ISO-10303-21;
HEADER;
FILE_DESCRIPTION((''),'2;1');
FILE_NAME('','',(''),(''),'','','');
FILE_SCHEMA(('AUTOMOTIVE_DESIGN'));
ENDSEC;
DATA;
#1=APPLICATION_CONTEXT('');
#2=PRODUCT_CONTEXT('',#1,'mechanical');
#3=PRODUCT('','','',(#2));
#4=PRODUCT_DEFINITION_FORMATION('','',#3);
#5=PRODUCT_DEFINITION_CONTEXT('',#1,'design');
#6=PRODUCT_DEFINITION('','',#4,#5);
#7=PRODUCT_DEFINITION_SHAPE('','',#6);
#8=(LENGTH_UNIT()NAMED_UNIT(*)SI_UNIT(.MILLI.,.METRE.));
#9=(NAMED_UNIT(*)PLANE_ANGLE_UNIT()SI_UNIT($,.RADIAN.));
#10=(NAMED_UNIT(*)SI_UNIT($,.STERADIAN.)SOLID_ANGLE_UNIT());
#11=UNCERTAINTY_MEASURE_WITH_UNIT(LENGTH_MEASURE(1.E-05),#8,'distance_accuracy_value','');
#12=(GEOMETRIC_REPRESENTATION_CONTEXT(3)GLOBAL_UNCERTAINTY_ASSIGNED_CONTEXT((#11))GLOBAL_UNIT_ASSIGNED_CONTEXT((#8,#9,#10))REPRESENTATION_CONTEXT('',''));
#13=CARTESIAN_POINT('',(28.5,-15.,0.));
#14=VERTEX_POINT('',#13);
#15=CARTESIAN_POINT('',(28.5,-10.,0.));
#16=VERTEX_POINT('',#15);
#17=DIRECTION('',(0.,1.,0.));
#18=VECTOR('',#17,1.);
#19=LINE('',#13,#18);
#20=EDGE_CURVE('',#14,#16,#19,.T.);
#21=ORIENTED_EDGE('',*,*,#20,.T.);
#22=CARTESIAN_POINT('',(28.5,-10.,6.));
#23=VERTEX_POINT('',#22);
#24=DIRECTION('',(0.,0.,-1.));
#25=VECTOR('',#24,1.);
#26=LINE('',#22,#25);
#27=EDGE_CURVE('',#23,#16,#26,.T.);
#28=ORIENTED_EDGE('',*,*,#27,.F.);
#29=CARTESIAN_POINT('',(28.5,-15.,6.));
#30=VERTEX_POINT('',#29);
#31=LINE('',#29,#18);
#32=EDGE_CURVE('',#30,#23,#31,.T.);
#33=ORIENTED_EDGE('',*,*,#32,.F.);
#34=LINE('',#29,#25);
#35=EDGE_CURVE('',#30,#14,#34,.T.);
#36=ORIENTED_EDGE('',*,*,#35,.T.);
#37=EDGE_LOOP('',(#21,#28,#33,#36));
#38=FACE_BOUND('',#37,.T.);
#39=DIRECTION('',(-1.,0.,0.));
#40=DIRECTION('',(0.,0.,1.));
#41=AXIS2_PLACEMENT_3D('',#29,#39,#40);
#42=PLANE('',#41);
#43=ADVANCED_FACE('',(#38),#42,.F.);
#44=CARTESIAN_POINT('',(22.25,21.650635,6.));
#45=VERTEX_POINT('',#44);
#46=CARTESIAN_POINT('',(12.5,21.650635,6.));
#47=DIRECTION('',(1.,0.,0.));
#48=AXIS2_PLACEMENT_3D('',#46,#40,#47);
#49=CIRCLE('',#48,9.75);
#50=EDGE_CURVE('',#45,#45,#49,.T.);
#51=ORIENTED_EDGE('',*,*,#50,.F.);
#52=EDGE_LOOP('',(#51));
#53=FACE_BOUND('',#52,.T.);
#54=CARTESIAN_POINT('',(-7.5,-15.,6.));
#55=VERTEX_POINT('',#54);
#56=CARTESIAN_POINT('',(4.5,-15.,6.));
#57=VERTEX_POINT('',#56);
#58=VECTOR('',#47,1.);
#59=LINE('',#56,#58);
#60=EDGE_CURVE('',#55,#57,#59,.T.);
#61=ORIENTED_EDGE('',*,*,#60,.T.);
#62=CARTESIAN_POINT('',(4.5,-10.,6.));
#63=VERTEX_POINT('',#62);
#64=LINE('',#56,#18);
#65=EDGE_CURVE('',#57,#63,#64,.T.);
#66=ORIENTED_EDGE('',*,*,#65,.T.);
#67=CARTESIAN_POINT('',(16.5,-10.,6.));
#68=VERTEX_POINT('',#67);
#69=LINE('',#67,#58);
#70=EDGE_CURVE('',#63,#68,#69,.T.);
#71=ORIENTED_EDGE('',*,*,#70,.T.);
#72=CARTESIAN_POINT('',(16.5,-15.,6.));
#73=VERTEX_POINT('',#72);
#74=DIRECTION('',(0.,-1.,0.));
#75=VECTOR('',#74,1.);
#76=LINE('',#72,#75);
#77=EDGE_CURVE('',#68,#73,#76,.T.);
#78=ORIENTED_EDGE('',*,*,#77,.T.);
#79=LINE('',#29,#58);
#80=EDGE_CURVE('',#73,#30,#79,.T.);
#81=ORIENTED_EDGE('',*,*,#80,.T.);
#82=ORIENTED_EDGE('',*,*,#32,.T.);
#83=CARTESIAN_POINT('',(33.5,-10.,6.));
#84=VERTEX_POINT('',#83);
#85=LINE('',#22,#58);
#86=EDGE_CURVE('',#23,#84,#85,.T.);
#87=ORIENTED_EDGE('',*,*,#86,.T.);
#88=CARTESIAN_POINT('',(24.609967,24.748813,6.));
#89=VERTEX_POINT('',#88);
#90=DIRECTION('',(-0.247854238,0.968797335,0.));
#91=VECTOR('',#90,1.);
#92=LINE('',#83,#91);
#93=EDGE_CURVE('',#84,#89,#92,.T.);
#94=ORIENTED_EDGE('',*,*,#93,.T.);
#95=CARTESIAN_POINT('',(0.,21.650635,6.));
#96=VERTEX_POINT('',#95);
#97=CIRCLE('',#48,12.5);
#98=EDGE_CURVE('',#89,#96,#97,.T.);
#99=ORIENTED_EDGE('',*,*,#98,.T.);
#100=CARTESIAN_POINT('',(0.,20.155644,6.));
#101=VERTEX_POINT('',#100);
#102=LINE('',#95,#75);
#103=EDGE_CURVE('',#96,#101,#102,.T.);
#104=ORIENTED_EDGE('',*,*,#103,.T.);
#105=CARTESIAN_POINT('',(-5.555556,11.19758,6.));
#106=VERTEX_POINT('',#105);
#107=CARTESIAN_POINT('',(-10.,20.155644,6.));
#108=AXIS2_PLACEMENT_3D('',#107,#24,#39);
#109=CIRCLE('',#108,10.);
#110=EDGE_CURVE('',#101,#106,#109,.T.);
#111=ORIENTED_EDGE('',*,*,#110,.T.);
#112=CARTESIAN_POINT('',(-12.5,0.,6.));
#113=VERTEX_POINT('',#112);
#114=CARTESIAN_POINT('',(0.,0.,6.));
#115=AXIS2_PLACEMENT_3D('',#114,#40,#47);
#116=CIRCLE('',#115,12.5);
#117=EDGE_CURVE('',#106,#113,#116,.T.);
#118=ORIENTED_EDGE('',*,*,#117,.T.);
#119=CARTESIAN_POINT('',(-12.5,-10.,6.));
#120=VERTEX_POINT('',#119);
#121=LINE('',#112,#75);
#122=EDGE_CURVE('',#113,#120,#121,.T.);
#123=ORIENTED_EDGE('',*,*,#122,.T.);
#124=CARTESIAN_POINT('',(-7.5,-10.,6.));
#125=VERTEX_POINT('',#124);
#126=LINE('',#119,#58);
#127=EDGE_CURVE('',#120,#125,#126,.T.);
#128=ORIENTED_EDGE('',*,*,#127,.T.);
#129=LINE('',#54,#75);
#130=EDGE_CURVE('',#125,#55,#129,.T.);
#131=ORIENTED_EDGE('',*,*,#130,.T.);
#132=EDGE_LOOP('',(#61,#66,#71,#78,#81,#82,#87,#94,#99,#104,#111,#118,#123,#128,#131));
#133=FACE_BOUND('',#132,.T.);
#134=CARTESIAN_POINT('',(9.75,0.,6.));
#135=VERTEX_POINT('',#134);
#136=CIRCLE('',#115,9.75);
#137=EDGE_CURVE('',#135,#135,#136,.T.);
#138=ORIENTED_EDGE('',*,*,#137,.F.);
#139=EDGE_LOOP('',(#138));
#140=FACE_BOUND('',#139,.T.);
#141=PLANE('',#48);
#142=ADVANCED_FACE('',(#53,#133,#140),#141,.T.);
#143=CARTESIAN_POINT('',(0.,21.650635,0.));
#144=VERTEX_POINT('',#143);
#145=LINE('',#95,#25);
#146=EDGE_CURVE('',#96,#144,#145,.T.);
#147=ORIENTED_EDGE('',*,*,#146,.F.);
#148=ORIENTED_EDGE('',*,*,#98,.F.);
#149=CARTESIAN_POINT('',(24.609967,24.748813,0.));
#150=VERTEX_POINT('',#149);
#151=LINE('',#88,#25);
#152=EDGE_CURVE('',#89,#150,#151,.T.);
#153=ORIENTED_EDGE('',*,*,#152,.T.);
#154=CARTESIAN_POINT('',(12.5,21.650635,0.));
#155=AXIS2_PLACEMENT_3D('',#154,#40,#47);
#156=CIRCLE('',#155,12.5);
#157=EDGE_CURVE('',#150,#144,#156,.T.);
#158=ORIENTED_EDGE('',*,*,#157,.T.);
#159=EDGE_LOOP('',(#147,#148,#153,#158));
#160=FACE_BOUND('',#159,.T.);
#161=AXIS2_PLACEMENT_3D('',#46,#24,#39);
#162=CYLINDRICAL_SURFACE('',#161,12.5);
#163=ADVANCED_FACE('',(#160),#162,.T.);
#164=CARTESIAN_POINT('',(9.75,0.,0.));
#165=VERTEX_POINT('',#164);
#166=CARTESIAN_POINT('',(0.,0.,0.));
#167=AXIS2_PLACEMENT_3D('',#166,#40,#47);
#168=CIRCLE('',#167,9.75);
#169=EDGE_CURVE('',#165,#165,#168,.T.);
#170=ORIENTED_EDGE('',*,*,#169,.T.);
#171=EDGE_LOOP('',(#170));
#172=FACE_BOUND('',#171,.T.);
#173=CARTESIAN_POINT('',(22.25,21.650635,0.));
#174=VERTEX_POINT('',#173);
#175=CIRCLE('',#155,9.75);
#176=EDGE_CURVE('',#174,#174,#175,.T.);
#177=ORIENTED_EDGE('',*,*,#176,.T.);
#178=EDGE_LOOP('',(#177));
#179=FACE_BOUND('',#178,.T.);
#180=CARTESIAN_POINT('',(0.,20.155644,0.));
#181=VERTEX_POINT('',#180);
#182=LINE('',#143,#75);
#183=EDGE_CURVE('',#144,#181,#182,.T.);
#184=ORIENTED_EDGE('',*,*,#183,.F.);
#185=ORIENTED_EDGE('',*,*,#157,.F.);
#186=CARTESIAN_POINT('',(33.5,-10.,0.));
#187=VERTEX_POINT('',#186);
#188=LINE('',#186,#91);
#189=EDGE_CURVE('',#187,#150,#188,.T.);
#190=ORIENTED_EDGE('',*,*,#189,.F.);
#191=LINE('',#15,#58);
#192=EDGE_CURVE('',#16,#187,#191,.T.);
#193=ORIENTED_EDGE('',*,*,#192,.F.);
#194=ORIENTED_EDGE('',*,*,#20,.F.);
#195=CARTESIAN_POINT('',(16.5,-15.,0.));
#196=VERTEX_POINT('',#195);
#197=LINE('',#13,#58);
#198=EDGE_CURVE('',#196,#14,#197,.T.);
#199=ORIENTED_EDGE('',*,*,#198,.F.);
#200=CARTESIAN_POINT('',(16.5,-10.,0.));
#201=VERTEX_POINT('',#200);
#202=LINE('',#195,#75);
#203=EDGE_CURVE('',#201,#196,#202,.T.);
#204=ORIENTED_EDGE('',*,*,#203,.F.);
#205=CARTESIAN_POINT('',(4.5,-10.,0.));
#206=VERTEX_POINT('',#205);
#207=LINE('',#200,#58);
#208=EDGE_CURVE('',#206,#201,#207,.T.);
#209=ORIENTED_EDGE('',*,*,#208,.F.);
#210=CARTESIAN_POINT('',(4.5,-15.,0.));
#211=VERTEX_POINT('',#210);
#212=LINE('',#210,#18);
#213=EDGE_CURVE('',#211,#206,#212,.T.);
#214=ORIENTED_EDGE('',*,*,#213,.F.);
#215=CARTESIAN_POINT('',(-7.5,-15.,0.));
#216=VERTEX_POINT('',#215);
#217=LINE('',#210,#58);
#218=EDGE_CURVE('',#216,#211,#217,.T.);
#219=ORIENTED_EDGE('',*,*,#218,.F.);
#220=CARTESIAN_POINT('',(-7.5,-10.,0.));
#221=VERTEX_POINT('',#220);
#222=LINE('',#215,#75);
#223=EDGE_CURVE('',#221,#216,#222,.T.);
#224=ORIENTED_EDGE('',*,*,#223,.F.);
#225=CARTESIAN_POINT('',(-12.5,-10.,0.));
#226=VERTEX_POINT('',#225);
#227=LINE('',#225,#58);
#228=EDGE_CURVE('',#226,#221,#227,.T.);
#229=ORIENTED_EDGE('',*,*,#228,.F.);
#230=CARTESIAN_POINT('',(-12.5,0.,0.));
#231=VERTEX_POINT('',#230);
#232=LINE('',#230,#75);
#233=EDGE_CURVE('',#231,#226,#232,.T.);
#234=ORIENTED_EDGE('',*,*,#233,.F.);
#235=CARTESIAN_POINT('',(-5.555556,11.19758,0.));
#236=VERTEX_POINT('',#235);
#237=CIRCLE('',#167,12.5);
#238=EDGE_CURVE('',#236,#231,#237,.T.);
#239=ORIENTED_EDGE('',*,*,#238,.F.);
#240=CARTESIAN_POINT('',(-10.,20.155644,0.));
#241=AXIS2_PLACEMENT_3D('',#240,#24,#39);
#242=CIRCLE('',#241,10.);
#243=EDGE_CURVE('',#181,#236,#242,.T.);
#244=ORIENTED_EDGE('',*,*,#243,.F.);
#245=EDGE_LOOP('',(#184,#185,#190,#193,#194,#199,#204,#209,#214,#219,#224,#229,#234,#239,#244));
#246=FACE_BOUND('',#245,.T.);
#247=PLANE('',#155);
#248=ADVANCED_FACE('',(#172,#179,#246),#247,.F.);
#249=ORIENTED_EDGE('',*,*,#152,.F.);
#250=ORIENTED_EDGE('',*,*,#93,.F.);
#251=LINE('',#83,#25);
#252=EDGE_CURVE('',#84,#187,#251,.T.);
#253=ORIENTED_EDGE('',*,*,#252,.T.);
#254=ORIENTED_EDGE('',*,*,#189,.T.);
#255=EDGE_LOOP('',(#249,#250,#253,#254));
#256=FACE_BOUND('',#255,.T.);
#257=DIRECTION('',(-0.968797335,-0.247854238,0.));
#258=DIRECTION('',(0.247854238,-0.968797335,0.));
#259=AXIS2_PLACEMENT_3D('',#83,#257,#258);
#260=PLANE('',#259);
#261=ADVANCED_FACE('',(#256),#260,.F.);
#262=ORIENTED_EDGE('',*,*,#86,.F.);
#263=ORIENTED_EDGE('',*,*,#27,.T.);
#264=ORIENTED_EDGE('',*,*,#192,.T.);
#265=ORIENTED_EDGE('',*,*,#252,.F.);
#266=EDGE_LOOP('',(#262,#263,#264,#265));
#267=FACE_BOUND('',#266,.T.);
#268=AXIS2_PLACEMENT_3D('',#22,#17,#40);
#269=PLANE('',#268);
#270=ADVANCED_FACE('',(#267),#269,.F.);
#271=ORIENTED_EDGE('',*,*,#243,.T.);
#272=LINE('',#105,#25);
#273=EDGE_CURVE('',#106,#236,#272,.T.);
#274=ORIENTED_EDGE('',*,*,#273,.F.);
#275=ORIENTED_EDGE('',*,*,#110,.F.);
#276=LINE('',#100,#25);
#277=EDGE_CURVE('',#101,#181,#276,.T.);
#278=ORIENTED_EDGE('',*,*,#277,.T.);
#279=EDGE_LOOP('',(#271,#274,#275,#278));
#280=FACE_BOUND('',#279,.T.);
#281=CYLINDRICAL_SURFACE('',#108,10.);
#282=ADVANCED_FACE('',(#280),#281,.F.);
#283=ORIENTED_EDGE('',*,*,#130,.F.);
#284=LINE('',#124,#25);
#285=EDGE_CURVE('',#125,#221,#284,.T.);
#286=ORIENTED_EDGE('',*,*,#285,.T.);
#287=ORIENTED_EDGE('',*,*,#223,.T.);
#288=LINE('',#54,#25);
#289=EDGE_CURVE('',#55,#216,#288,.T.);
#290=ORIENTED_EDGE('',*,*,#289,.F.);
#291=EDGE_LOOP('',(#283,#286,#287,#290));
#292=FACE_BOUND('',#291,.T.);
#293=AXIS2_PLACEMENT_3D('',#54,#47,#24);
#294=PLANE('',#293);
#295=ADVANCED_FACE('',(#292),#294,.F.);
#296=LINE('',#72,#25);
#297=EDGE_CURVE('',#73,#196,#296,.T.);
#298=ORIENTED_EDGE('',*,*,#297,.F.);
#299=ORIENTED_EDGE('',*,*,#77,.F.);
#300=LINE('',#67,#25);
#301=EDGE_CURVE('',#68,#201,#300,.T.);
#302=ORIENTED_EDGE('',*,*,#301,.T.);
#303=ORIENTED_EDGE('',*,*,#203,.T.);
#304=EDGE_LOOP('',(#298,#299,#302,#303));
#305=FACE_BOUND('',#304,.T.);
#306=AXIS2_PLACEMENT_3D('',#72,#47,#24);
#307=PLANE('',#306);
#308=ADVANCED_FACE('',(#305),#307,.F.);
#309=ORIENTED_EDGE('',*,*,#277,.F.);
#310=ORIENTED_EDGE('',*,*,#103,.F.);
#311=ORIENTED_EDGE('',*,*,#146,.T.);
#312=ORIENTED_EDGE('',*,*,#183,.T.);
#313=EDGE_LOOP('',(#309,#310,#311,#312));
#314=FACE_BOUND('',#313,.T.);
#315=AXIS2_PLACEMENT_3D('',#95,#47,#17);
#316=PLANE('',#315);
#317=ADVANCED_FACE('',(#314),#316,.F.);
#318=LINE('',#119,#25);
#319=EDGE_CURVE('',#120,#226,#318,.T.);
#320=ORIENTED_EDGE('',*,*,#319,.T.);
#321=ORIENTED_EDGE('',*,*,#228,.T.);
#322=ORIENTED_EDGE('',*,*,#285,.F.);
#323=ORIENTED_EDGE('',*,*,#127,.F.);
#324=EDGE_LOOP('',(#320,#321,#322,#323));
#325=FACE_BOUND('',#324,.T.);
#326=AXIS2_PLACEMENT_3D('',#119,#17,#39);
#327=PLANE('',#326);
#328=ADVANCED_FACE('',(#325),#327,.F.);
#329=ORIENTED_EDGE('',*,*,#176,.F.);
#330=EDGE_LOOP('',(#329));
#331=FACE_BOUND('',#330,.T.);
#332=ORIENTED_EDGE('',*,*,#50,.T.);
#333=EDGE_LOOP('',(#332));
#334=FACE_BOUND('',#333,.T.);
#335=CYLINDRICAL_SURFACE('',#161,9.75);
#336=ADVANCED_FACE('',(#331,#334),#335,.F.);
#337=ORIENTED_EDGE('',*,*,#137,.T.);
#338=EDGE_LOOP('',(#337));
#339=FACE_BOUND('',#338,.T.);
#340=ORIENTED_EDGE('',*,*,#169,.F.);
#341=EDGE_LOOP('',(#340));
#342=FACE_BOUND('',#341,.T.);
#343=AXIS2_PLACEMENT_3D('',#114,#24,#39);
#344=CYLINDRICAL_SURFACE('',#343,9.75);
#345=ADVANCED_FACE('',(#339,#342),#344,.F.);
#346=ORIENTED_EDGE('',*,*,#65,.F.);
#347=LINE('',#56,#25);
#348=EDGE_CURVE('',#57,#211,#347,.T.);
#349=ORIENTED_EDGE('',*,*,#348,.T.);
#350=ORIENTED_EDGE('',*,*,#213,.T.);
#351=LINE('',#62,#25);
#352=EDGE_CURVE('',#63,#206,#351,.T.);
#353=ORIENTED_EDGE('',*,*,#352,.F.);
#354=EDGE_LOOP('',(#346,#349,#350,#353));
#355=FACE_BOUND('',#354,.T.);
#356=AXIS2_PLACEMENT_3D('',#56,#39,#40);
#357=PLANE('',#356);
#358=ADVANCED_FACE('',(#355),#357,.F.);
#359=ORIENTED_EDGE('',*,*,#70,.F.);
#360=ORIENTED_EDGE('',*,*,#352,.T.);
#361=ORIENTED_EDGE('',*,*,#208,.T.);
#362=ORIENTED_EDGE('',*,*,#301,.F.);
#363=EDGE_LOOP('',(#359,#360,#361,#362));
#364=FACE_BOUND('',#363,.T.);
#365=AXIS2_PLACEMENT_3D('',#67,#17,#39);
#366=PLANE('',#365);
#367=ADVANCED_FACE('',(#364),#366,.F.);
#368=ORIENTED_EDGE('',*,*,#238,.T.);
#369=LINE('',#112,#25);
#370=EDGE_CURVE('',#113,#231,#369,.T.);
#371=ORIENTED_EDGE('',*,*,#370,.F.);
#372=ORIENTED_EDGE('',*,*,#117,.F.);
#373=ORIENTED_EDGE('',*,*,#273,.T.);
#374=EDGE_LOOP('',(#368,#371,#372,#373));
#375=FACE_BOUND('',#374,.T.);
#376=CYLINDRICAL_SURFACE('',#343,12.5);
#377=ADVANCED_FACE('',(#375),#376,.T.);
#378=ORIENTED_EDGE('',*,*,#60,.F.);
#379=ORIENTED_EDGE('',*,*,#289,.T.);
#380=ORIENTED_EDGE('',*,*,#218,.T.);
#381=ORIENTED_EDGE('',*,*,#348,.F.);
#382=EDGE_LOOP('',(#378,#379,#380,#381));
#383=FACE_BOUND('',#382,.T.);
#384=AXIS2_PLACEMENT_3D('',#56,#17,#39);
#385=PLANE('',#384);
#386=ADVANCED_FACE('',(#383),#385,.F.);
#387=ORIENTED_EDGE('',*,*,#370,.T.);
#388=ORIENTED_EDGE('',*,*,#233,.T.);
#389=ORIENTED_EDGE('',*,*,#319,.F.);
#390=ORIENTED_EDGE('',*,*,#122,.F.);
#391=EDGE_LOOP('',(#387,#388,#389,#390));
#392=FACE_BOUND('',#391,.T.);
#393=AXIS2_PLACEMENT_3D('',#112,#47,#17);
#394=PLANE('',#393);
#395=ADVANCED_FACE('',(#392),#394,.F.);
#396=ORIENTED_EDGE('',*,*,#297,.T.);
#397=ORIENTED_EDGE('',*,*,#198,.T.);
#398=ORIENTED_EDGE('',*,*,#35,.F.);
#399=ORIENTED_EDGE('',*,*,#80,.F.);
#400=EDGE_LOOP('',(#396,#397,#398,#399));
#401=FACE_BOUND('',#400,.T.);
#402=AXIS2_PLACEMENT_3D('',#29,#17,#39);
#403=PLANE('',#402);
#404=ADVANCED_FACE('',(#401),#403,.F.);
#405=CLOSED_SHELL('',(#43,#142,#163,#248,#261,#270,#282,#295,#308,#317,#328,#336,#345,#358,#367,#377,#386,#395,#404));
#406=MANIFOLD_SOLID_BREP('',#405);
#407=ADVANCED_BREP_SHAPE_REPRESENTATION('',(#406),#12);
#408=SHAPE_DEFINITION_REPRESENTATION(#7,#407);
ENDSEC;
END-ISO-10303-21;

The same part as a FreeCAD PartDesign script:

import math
import FreeCAD as App
import Part
import Sketcher
from FreeCAD import Vector
Q = App.Units.Quantity

doc = App.newDocument("Part")
body = doc.addObject("PartDesign::Body", "Body")

sketch1 = body.newObject("Sketcher::SketchObject", "Sketch")
sketch1.AttachmentSupport = (doc.getObject("XY_Plane"), [""])
sketch1.MapMode = "FlatFace"
sketch1.addGeometry([
    Part.LineSegment(Vector(-12.5, 0, 0), Vector(-12.5, -10, 0)),
    Part.LineSegment(Vector(-12.5, -10, 0), Vector(-7.5, -10, 0)),
    Part.LineSegment(Vector(-7.5, -10, 0), Vector(-7.5, -15, 0)),
    Part.LineSegment(Vector(-7.5, -15, 0), Vector(4.5, -15, 0)),
    Part.LineSegment(Vector(4.5, -15, 0), Vector(4.5, -10, 0)),
    Part.LineSegment(Vector(4.5, -10, 0), Vector(16.5, -10, 0)),
    Part.LineSegment(Vector(16.5, -10, 0), Vector(16.5, -15, 0)),
    Part.LineSegment(Vector(16.5, -15, 0), Vector(28.5, -15, 0)),
    Part.LineSegment(Vector(28.5, -15, 0), Vector(28.5, -10, 0)),
    Part.LineSegment(Vector(28.5, -10, 0), Vector(33.5, -10, 0)),
    Part.LineSegment(Vector(33.5, -10, 0), Vector(24.6, 24.7, 0)),
    Part.ArcOfCircle(Part.Circle(Vector(12.5, 21.7, 0), Vector(0, 0, 1), 12.5), math.radians(14), math.radians(180)),
    Part.LineSegment(Vector(0, 21.7, 0), Vector(0, 20.2, 0)),
    Part.ArcOfCircle(Part.Circle(Vector(-10, 20.2, 0), Vector(0, 0, 1), 10), math.radians(-64), math.radians(0)),
    Part.ArcOfCircle(Part.Circle(Vector(0, 0, 0), Vector(0, 0, 1), 12.5), math.radians(116), math.radians(180)),
    Part.Circle(Vector(0, 0, 0), Vector(0, 0, 1), 9.8),
    Part.Circle(Vector(12.5, 21.7, 0), Vector(0, 0, 1), 9.8),
], False)
sketch1.addConstraint([
    Sketcher.Constraint("Coincident", 0, 2, 1, 1),
    Sketcher.Constraint("Coincident", 1, 2, 2, 1),
    Sketcher.Constraint("Coincident", 2, 2, 3, 1),
    Sketcher.Constraint("Coincident", 3, 2, 4, 1),
    Sketcher.Constraint("Coincident", 4, 2, 5, 1),
    Sketcher.Constraint("Coincident", 5, 2, 6, 1),
    Sketcher.Constraint("Coincident", 6, 2, 7, 1),
    Sketcher.Constraint("Coincident", 7, 2, 8, 1),
    Sketcher.Constraint("Coincident", 8, 2, 9, 1),
    Sketcher.Constraint("Coincident", 9, 2, 10, 1),
    Sketcher.Constraint("Tangent", 10, 2, 11, 1),
    Sketcher.Constraint("Tangent", 11, 2, 12, 1),
    Sketcher.Constraint("Tangent", 12, 2, 13, 2),
    Sketcher.Constraint("Tangent", 13, 1, 14, 1),
    Sketcher.Constraint("Tangent", 14, 2, 0, 1),
    Sketcher.Constraint("Vertical", 0),
    Sketcher.Constraint("Horizontal", 1),
    Sketcher.Constraint("Vertical", 2),
    Sketcher.Constraint("Horizontal", 3),
    Sketcher.Constraint("Vertical", 4),
    Sketcher.Constraint("Horizontal", 5),
    Sketcher.Constraint("Vertical", 6),
    Sketcher.Constraint("Horizontal", 7),
    Sketcher.Constraint("Vertical", 8),
    Sketcher.Constraint("Horizontal", 9),
    Sketcher.Constraint("Vertical", 12),
    Sketcher.Constraint("Coincident", 14, 3, -1, 1),
    Sketcher.Constraint("Coincident", 15, 3, -1, 1),
    Sketcher.Constraint("Coincident", 16, 3, 11, 3),
    Sketcher.Constraint("Equal", 11, 14),
    Sketcher.Constraint("Equal", 15, 16),
    Sketcher.Constraint("PointOnObject", 11, 2, -2),
    Sketcher.Constraint("Horizontal", 1, 2, 4, 2),
    Sketcher.Constraint("Horizontal", 3, 2, 6, 2),
    Sketcher.Constraint("Horizontal", 5, 2, 8, 2),
    Sketcher.Constraint("Equal", 3, 5),
    Sketcher.Constraint("Equal", 5, 7),
    Sketcher.Constraint("Equal", 1, 9),
    Sketcher.Constraint("Equal", 9, 2),
    Sketcher.Constraint("Radius", 13, Q("10 mm")),
    Sketcher.Constraint("Diameter", 15, Q("19.5 mm")),
    Sketcher.Constraint("Radius", 11, Q("12.5 mm")),
    Sketcher.Constraint("DistanceX", 1, 1, 1, 2, Q("5 mm")),
    Sketcher.Constraint("DistanceX", 3, 1, 3, 2, Q("12 mm")),
    Sketcher.Constraint("DistanceY", 0, 2, 0, 1, Q("10 mm")),
    Sketcher.Constraint("DistanceY", 12, 2, 12, 1, Q("1.494991 mm")),
])
pad1 = body.newObject("PartDesign::Pad", "Pad")
pad1.Profile = sketch1
pad1.Length = 6

doc.recompute()
